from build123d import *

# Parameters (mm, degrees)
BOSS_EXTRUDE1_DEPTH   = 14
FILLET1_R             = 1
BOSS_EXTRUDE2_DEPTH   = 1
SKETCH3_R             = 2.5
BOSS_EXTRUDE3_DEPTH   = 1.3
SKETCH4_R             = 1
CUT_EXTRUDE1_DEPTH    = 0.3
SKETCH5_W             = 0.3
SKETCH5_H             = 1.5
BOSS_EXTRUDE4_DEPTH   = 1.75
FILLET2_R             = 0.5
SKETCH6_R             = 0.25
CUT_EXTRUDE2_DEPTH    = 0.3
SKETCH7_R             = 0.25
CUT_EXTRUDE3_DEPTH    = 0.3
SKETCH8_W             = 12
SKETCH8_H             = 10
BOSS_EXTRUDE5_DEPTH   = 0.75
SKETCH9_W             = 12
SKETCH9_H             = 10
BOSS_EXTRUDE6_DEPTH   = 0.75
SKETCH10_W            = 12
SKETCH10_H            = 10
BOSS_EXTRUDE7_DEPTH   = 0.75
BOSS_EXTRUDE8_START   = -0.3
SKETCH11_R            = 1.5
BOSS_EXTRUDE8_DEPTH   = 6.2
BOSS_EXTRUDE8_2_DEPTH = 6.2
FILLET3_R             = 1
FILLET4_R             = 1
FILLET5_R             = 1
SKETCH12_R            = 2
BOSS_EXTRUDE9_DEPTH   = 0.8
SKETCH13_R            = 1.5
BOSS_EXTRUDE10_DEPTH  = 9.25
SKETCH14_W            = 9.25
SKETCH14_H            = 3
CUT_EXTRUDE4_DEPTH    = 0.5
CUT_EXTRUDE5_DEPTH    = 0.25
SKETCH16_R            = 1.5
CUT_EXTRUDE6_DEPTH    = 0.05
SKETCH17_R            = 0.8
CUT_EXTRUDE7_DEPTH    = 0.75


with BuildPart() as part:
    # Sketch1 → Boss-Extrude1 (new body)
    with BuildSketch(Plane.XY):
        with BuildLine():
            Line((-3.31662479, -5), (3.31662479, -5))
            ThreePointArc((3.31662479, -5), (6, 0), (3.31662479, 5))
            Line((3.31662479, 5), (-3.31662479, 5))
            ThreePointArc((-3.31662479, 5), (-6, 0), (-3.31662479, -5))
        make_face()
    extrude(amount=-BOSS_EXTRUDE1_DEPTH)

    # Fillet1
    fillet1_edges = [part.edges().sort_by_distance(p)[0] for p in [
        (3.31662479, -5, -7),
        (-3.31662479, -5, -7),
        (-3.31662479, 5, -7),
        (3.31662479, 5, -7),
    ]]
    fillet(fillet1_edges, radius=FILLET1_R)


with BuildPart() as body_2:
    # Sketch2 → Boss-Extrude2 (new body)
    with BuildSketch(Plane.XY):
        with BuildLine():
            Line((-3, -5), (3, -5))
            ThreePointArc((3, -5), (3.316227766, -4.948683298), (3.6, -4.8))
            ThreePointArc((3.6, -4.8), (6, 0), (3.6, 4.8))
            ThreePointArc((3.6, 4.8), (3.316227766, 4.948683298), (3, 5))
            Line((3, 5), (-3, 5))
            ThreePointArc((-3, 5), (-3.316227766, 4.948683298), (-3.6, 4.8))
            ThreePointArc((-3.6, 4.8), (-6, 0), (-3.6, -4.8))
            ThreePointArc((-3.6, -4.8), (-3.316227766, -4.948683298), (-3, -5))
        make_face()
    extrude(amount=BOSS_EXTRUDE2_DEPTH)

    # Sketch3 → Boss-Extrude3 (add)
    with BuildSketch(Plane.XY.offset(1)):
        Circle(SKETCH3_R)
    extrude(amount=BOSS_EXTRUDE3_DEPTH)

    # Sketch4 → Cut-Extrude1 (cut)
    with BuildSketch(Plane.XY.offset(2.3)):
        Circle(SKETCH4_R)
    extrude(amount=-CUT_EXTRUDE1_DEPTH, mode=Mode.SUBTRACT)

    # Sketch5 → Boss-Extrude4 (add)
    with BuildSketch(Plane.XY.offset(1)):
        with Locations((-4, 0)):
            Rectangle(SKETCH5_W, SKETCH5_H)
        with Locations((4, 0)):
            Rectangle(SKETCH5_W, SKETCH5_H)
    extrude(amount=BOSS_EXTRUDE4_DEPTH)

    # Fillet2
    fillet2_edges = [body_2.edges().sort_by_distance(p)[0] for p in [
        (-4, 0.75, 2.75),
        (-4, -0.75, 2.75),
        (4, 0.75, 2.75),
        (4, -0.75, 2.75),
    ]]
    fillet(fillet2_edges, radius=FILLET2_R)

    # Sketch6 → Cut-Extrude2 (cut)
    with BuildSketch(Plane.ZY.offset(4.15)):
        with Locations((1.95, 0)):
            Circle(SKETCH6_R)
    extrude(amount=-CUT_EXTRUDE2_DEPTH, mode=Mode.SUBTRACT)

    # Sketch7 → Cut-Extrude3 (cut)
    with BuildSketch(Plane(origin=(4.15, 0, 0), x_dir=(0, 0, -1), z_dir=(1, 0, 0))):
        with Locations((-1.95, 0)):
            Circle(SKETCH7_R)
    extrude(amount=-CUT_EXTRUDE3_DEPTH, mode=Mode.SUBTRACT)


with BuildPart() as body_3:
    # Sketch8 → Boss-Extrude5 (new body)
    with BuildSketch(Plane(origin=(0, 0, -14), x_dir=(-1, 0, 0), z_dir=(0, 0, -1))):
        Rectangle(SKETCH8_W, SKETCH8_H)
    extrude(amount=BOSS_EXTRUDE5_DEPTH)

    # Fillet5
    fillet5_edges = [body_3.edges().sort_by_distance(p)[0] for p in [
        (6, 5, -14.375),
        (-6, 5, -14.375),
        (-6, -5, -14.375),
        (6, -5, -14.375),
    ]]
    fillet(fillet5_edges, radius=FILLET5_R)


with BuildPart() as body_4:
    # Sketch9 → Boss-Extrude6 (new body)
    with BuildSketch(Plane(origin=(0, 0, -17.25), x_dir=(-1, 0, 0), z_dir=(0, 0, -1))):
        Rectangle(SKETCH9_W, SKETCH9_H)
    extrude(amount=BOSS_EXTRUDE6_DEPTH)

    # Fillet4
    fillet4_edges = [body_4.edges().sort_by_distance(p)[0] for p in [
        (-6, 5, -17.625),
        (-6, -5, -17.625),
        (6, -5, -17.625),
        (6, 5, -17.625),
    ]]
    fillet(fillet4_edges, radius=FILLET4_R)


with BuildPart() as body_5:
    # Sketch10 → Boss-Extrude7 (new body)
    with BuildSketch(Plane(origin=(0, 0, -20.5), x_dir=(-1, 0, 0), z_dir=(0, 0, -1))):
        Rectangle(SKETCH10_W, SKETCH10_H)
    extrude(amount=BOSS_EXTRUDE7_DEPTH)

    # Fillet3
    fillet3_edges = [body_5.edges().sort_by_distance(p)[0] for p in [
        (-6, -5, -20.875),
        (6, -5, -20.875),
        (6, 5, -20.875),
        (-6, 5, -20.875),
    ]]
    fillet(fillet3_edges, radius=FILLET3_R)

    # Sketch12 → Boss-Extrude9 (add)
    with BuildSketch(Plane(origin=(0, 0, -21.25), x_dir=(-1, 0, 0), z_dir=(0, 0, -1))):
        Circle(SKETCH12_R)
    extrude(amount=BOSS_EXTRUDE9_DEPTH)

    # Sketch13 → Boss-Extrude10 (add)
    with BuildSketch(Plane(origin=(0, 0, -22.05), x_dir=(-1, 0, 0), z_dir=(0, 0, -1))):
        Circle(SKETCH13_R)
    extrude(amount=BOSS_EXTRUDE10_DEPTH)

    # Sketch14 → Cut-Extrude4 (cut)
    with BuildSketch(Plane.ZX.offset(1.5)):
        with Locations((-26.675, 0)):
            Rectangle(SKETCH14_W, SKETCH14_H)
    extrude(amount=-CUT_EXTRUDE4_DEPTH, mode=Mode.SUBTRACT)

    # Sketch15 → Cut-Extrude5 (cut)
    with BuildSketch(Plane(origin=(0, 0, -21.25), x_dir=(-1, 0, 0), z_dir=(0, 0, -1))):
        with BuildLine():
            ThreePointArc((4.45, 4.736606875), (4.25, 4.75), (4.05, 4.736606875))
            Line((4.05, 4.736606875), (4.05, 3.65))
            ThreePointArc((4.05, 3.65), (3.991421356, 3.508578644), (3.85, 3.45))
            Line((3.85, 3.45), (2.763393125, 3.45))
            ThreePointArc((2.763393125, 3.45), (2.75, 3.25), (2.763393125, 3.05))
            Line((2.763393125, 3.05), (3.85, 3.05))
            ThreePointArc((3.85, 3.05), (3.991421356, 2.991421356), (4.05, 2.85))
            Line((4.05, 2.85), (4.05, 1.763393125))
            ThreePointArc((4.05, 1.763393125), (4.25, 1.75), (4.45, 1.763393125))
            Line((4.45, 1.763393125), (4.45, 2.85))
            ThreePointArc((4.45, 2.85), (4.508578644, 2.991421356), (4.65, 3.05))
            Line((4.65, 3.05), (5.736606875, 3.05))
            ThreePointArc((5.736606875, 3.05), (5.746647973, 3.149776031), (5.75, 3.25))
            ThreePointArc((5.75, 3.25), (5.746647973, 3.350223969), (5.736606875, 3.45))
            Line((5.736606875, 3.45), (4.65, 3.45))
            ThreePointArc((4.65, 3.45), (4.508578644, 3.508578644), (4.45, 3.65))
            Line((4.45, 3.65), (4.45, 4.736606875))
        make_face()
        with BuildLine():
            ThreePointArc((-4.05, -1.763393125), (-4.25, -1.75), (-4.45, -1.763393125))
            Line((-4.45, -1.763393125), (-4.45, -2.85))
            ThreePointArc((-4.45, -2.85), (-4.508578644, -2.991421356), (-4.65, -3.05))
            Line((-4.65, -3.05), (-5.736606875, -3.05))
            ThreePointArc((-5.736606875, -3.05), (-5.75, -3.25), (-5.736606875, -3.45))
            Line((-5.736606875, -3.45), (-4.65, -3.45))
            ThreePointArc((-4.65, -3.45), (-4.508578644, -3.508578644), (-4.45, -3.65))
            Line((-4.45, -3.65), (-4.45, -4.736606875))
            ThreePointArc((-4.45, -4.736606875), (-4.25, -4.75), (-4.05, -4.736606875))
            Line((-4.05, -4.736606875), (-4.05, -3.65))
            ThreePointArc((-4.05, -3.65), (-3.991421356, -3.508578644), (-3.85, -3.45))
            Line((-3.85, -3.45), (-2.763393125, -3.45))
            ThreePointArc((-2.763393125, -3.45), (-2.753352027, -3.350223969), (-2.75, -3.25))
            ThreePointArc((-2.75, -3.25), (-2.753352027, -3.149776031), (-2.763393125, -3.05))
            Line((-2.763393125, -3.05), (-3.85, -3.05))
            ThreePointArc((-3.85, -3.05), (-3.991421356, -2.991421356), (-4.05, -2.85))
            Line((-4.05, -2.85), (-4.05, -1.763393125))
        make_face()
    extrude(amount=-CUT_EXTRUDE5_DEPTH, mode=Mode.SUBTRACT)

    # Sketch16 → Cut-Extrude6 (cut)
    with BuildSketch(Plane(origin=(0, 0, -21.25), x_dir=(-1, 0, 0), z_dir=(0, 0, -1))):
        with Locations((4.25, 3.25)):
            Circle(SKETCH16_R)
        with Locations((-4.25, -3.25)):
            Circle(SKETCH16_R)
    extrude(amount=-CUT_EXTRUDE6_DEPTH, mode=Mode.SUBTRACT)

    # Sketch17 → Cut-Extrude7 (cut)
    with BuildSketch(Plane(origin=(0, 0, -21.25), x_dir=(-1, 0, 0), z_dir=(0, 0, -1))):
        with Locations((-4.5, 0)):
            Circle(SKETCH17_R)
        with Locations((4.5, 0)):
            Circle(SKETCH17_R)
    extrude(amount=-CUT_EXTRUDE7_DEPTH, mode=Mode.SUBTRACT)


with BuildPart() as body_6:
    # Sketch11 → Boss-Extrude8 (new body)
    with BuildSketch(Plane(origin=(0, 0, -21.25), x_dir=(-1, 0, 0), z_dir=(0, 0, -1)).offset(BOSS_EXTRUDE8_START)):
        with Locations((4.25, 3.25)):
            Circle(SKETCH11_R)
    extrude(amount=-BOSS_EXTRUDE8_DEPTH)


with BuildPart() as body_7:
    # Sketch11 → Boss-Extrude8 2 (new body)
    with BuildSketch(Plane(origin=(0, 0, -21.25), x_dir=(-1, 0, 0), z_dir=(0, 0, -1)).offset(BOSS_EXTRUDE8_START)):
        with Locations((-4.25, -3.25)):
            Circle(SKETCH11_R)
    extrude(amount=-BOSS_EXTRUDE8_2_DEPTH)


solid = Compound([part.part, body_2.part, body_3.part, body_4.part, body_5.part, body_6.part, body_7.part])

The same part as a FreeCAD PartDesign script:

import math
import FreeCAD as App
import Part
import Sketcher
Q = App.Units.Quantity


def edges_at(feature, points):
    """Names of the edges that pass closest to the given points."""
    edges = feature.Shape.Edges
    near = lambda p: min(range(len(edges)), key=lambda i: edges[i].distToShape(Part.Vertex(*p))[0])
    return sorted({f"Edge{near(p) + 1}" for p in points})

doc = App.newDocument("Part")
params = doc.addObject("Spreadsheet::Sheet", "Params")
for row, (alias, value) in enumerate([
    ("sketch1_radius", "6 mm"),
    ("pad1_length", "14 mm"),
    ("fillet_radius", "1 mm"),
    ("sketch2_radius", "1 mm"),
    ("sketch2_radius2", "6 mm"),
    ("sketch2_width", "6 mm"),
    ("pad2_length", "1 mm"),
    ("sketch3_diameter", "5 mm"),
    ("pad3_length", "1.3 mm"),
    ("sketch4_diameter", "2 mm"),
    ("pocket1_length", "0.3 mm"),
    ("sketch5_width", "0.3 mm"),
    ("sketch5_height", "1.5 mm"),
    ("pad4_length", "1.75 mm"),
    ("fillet2_radius", "0.5 mm"),
    ("sketch6_diameter", "0.5 mm"),
    ("pocket2_length", "0.3 mm"),
    ("sketch7_diameter", "0.5 mm"),
    ("pocket3_length", "0.3 mm"),
    ("sketch8_width", "12 mm"),
    ("sketch8_height", "10 mm"),
    ("pad5_length", "0.75 mm"),
    ("fillet3_radius", "1 mm"),
    ("sketch9_width", "12 mm"),
    ("sketch9_height", "10 mm"),
    ("pad6_length", "0.75 mm"),
    ("fillet4_radius", "1 mm"),
    ("sketch10_width", "12 mm"),
    ("sketch10_height", "10 mm"),
    ("pad7_length", "0.75 mm"),
    ("fillet5_radius", "1 mm"),
    ("sketch11_diameter", "4 mm"),
    ("pad8_length", "0.8 mm"),
    ("sketch12_diameter", "3 mm"),
    ("pad9_length", "9.25 mm"),
    ("sketch13_width", "3 mm"),
    ("sketch13_height", "9.25 mm"),
    ("pocket4_length", "0.5 mm"),
    ("sketch14_radius", "1.5 mm"),
    ("sketch14_radius2", "0.2 mm"),
    ("pocket5_length", "0.25 mm"),
    ("sketch15_diameter", "3 mm"),
    ("pocket6_length", "0.05 mm"),
    ("sketch16_diameter", "1.6 mm"),
    ("pocket7_length", "0.75 mm"),
    ("sketch17_diameter", "3 mm"),
    ("pad10_length", "6.2 mm"),
    ("sketch18_diameter", "3 mm"),
    ("pad11_length", "6.2 mm"),
], start=1):
    params.set(f"A{row}", alias)
    params.set(f"B{row}", "=" + value)
    params.setAlias(f"B{row}", alias)

body = doc.addObject("PartDesign::Body", "Body")

# Sketch on XY plane
sketch1 = doc.addObject("Sketcher::SketchObject", "Sketch")
body.addObject(sketch1)
sketch1.AttachmentSupport = (doc.XY_Plane, [""])
sketch1.MapMode = "FlatFace"
sketch1.addGeometry([
    Part.LineSegment(App.Vector(-3, -5, 0), App.Vector(3, -5, 0)),
    Part.ArcOfCircle(Part.Circle(App.Vector(0, 0, 0), App.Vector(0, 0, 1), 6), math.radians(-56), math.radians(56)),
    Part.LineSegment(App.Vector(3, 5, 0), App.Vector(-3, 5, 0)),
    Part.ArcOfCircle(Part.Circle(App.Vector(0, 0, 0), App.Vector(0, 0, 1), 6), math.radians(124), math.radians(236)),
], False)
sketch1.addConstraint([
    Sketcher.Constraint("Coincident", 0, 2, 1, 1),
    Sketcher.Constraint("Coincident", 1, 2, 2, 1),
    Sketcher.Constraint("Coincident", 2, 2, 3, 1),
    Sketcher.Constraint("Coincident", 3, 2, 0, 1),
    Sketcher.Constraint("Horizontal", 0),
    Sketcher.Constraint("Horizontal", 2),
    Sketcher.Constraint("Coincident", 1, 3, -1, 1),
    Sketcher.Constraint("Coincident", 3, 3, -1, 1),
    Sketcher.Constraint("Equal", 1, 3),
    Sketcher.Constraint("Vertical", 0, 2, 1, 2),
    Sketcher.Constraint("Radius", 1, Q("6 mm")),
    Sketcher.Constraint("DistanceY", 0, 2, -1, 1, Q("5 mm")),
])
sketch1.setExpression("Constraints[10]", "Params.sketch1_radius")
pad1 = doc.addObject("PartDesign::Pad", "Pad")
body.addObject(pad1)
pad1.Profile = sketch1
pad1.setExpression("Length", "Params.pad1_length")
pad1.Reversed = True
doc.recompute()

fillet = doc.addObject("PartDesign::Fillet", "Fillet")
body.addObject(fillet)
fillet.Base = (pad1, edges_at(pad1, [
    (3.317, -5, -7),
    (-3.317, -5, -7),
    (-3.317, 5, -7),
    (3.317, 5, -7),
]))
fillet.setExpression("Radius", "Params.fillet_radius")
body2 = doc.addObject("PartDesign::Body", "Body001")

# Sketch on XY plane
sketch2 = doc.addObject("Sketcher::SketchObject", "Sketch001")
body2.addObject(sketch2)
sketch2.AttachmentSupport = (doc.getObject("XY_Plane001"), [""])
sketch2.MapMode = "FlatFace"
sketch2.addGeometry([
    Part.LineSegment(App.Vector(-3, -5, 0), App.Vector(3, -5, 0)),  # 0
    Part.ArcOfCircle(Part.Circle(App.Vector(3, -4, 0), App.Vector(0, 0, 1), 1), math.radians(-90), math.radians(-53)),  # 1
    Part.ArcOfCircle(Part.Circle(App.Vector(0, 0, 0), App.Vector(0, 0, 1), 6), math.radians(-53), math.radians(53)),  # 2
    Part.ArcOfCircle(Part.Circle(App.Vector(3, 4, 0), App.Vector(0, 0, 1), 1), math.radians(53), math.radians(90)),  # 3
    Part.LineSegment(App.Vector(3, 5, 0), App.Vector(-3, 5, 0)),  # 4
    Part.ArcOfCircle(Part.Circle(App.Vector(-3, 4, 0), App.Vector(0, 0, 1), 1), math.radians(90), math.radians(127)),  # 5
    Part.ArcOfCircle(Part.Circle(App.Vector(0, 0, 0), App.Vector(0, 0, 1), 6), math.radians(127), math.radians(233)),  # 6
    Part.ArcOfCircle(Part.Circle(App.Vector(-3, -4, 0), App.Vector(0, 0, 1), 1), math.radians(-127), math.radians(-90)),  # 7
], False)
sketch2.addConstraint([
    Sketcher.Constraint("Tangent", 0, 2, 1, 1),
    Sketcher.Constraint("Tangent", 1, 2, 2, 1),
    Sketcher.Constraint("Tangent", 2, 2, 3, 1),
    Sketcher.Constraint("Tangent", 3, 2, 4, 1),
    Sketcher.Constraint("Tangent", 4, 2, 5, 1),
    Sketcher.Constraint("Tangent", 5, 2, 6, 1),
    Sketcher.Constraint("Tangent", 6, 2, 7, 1),
    Sketcher.Constraint("Tangent", 7, 2, 0, 1),
    Sketcher.Constraint("Horizontal", 0),
    Sketcher.Constraint("Horizontal", 4),
    Sketcher.Constraint("Coincident", 2, 3, -1, 1),
    Sketcher.Constraint("Coincident", 6, 3, -1, 1),
    Sketcher.Constraint("Equal", 1, 3),
    Sketcher.Constraint("Equal", 3, 5),
    Sketcher.Constraint("Equal", 2, 6),
    Sketcher.Constraint("Equal", 5, 7),
    Sketcher.Constraint("Vertical", 1, 3, 3, 3),
    Sketcher.Constraint("Radius", 1, Q("1 mm")),
    Sketcher.Constraint("Radius", 2, Q("6 mm")),
    Sketcher.Constraint("DistanceX", 0, 1, 0, 2, Q("6 mm")),
])
sketch2.setExpression("Constraints[17]", "Params.sketch2_radius")
sketch2.setExpression("Constraints[18]", "Params.sketch2_radius2")
sketch2.setExpression("Constraints[19]", "Params.sketch2_width")
pad2 = doc.addObject("PartDesign::Pad", "Pad001")
body2.addObject(pad2)
pad2.Profile = sketch2
pad2.setExpression("Length", "Params.pad2_length")

# Sketch on XY plane
sketch3 = doc.addObject("Sketcher::SketchObject", "Sketch002")
body2.addObject(sketch3)
sketch3.AttachmentSupport = (doc.getObject("XY_Plane001"), [""])
sketch3.MapMode = "FlatFace"
sketch3.AttachmentOffset = App.Placement(App.Vector(0, 0, 1), App.Rotation())
sketch3.addGeometry(Part.Circle(App.Vector(0, 0, 0), App.Vector(0, 0, 1), 2.5), False)
sketch3.addConstraint([
    Sketcher.Constraint("Coincident", 0, 3, -1, 1),
    Sketcher.Constraint("Diameter", 0, Q("5 mm")),
])
sketch3.setExpression("Constraints[1]", "Params.sketch3_diameter")
pad3 = doc.addObject("PartDesign::Pad", "Pad002")
body2.addObject(pad3)
pad3.Profile = sketch3
pad3.setExpression("Length", "Params.pad3_length")

# Sketch on XY plane
sketch4 = doc.addObject("Sketcher::SketchObject", "Sketch003")
body2.addObject(sketch4)
sketch4.AttachmentSupport = (doc.getObject("XY_Plane001"), [""])
sketch4.MapMode = "FlatFace"
sketch4.AttachmentOffset = App.Placement(App.Vector(0, 0, 2.3), App.Rotation())
sketch4.addGeometry(Part.Circle(App.Vector(0, 0, 0), App.Vector(0, 0, 1), 1), False)
sketch4.addConstraint([
    Sketcher.Constraint("Coincident", 0, 3, -1, 1),
    Sketcher.Constraint("Diameter", 0, Q("2 mm")),
])
sketch4.setExpression("Constraints[1]", "Params.sketch4_diameter")
pocket1 = doc.addObject("PartDesign::Pocket", "Pocket")
body2.addObject(pocket1)
pocket1.Profile = sketch4
pocket1.setExpression("Length", "Params.pocket1_length")

# Sketch on XY plane
sketch5 = doc.addObject("Sketcher::SketchObject", "Sketch004")
body2.addObject(sketch5)
sketch5.AttachmentSupport = (doc.getObject("XY_Plane001"), [""])
sketch5.MapMode = "FlatFace"
sketch5.AttachmentOffset = App.Placement(App.Vector(0, 0, 1), App.Rotation())
sketch5.addGeometry([
    Part.LineSegment(App.Vector(-4.15, 0.75, 0), App.Vector(-4.15, -0.75, 0)),  # 0
    Part.LineSegment(App.Vector(-4.15, -0.75, 0), App.Vector(-3.85, -0.75, 0)),  # 1
    Part.LineSegment(App.Vector(-3.85, -0.75, 0), App.Vector(-3.85, 0.75, 0)),  # 2
    Part.LineSegment(App.Vector(-3.85, 0.75, 0), App.Vector(-4.15, 0.75, 0)),  # 3
    Part.LineSegment(App.Vector(3.85, 0.75, 0), App.Vector(3.85, -0.75, 0)),  # 4
    Part.LineSegment(App.Vector(3.85, -0.75, 0), App.Vector(4.15, -0.75, 0)),  # 5
    Part.LineSegment(App.Vector(4.15, -0.75, 0), App.Vector(4.15, 0.75, 0)),  # 6
    Part.LineSegment(App.Vector(4.15, 0.75, 0), App.Vector(3.85, 0.75, 0)),  # 7
], False)
sketch5.addConstraint([
    Sketcher.Constraint("Coincident", 0, 2, 1, 1),
    Sketcher.Constraint("Coincident", 1, 2, 2, 1),
    Sketcher.Constraint("Coincident", 2, 2, 3, 1),
    Sketcher.Constraint("Coincident", 3, 2, 0, 1),
    Sketcher.Constraint("Coincident", 4, 2, 5, 1),
    Sketcher.Constraint("Coincident", 5, 2, 6, 1),
    Sketcher.Constraint("Coincident", 6, 2, 7, 1),
    Sketcher.Constraint("Coincident", 7, 2, 4, 1),
    Sketcher.Constraint("Vertical", 0),
    Sketcher.Constraint("Horizontal", 1),
    Sketcher.Constraint("Vertical", 2),
    Sketcher.Constraint("Horizontal", 3),
    Sketcher.Constraint("Vertical", 4),
    Sketcher.Constraint("Horizontal", 5),
    Sketcher.Constraint("Vertical", 6),
    Sketcher.Constraint("Horizontal", 7),
    Sketcher.Constraint("Symmetric", 2, 2, 4, 2, -1, 1),
    Sketcher.Constraint("Symmetric", 0, 2, 6, 2, -1, 1),
    Sketcher.Constraint("Horizontal", 1, 2, 4, 2),
    Sketcher.Constraint("DistanceX", 1, 1, 1, 2, Q("0.3 mm")),
    Sketcher.Constraint("DistanceY", 0, 2, 0, 1, Q("1.5 mm")),
    Sketcher.Constraint("DistanceX", 0, 2, 4, 2, Q("8 mm")),
])
sketch5.setExpression("Constraints[19]", "Params.sketch5_width")
sketch5.setExpression("Constraints[20]", "Params.sketch5_height")
pad4 = doc.addObject("PartDesign::Pad", "Pad003")
body2.addObject(pad4)
pad4.Profile = sketch5
pad4.setExpression("Length", "Params.pad4_length")
doc.recompute()

fillet2 = doc.addObject("PartDesign::Fillet", "Fillet001")
body2.addObject(fillet2)
fillet2.Base = (pad4, edges_at(pad4, [
    (-4, 0.75, 2.75),
    (-4, -0.75, 2.75),
    (4, 0.75, 2.75),
    (4, -0.75, 2.75),
]))
fillet2.setExpression("Radius", "Params.fillet2_radius")

# Sketch on YZ plane
sketch6 = doc.addObject("Sketcher::SketchObject", "Sketch005")
body2.addObject(sketch6)
sketch6.AttachmentSupport = (doc.getObject("YZ_Plane001"), [""])
sketch6.MapMode = "FlatFace"
sketch6.AttachmentOffset = App.Placement(App.Vector(0, 0, -4.15), App.Rotation())
sketch6.addGeometry(Part.Circle(App.Vector(0, 1.95, 0), App.Vector(0, 0, 1), 0.25), False)
sketch6.addConstraint([
    Sketcher.Constraint("PointOnObject", 0, 3, -2),
    Sketcher.Constraint("Diameter", 0, Q("0.5 mm")),
    Sketcher.Constraint("DistanceY", -1, 1, 0, 3, Q("1.95 mm")),
])
sketch6.setExpression("Constraints[1]", "Params.sketch6_diameter")
pocket2 = doc.addObject("PartDesign::Pocket", "Pocket001")
body2.addObject(pocket2)
pocket2.Profile = sketch6
pocket2.setExpression("Length", "Params.pocket2_length")
pocket2.Reversed = True

# Sketch on YZ plane
sketch7 = doc.addObject("Sketcher::SketchObject", "Sketch006")
body2.addObject(sketch7)
sketch7.AttachmentSupport = (doc.getObject("YZ_Plane001"), [""])
sketch7.MapMode = "FlatFace"
sketch7.AttachmentOffset = App.Placement(App.Vector(0, 0, 4.15), App.Rotation())
sketch7.addGeometry(Part.Circle(App.Vector(0, 1.95, 0), App.Vector(0, 0, 1), 0.25), False)
sketch7.addConstraint([
    Sketcher.Constraint("PointOnObject", 0, 3, -2),
    Sketcher.Constraint("Diameter", 0, Q("0.5 mm")),
    Sketcher.Constraint("DistanceY", -1, 1, 0, 3, Q("1.95 mm")),
])
sketch7.setExpression("Constraints[1]", "Params.sketch7_diameter")
pocket3 = doc.addObject("PartDesign::Pocket", "Pocket002")
body2.addObject(pocket3)
pocket3.Profile = sketch7
pocket3.setExpression("Length", "Params.pocket3_length")
body3 = doc.addObject("PartDesign::Body", "Body002")

# Sketch on XY plane
sketch8 = doc.addObject("Sketcher::SketchObject", "Sketch007")
body3.addObject(sketch8)
sketch8.AttachmentSupport = (doc.getObject("XY_Plane002"), [""])
sketch8.MapMode = "FlatFace"
sketch8.AttachmentOffset = App.Placement(App.Vector(0, 0, -14), App.Rotation())
sketch8.addGeometry([
    Part.LineSegment(App.Vector(6, 5, 0), App.Vector(6, -5, 0)),
    Part.LineSegment(App.Vector(6, -5, 0), App.Vector(-6, -5, 0)),
    Part.LineSegment(App.Vector(-6, -5, 0), App.Vector(-6, 5, 0)),
    Part.LineSegment(App.Vector(-6, 5, 0), App.Vector(6, 5, 0)),
], False)
sketch8.addConstraint([
    Sketcher.Constraint("Coincident", 0, 2, 1, 1),
    Sketcher.Constraint("Coincident", 1, 2, 2, 1),
    Sketcher.Constraint("Coincident", 2, 2, 3, 1),
    Sketcher.Constraint("Coincident", 3, 2, 0, 1),
    Sketcher.Constraint("Vertical", 0),
    Sketcher.Constraint("Horizontal", 1),
    Sketcher.Constraint("Vertical", 2),
    Sketcher.Constraint("Horizontal", 3),
    Sketcher.Constraint("Symmetric", 0, 2, 2, 2, -1, 1),
    Sketcher.Constraint("DistanceX", 1, 2, 1, 1, Q("12 mm")),
    Sketcher.Constraint("DistanceY", 0, 2, 0, 1, Q("10 mm")),
])
sketch8.setExpression("Constraints[9]", "Params.sketch8_width")
sketch8.setExpression("Constraints[10]", "Params.sketch8_height")
pad5 = doc.addObject("PartDesign::Pad", "Pad004")
body3.addObject(pad5)
pad5.Profile = sketch8
pad5.setExpression("Length", "Params.pad5_length")
pad5.Reversed = True
doc.recompute()

fillet3 = doc.addObject("PartDesign::Fillet", "Fillet002")
body3.addObject(fillet3)
fillet3.Base = (pad5, edges_at(pad5, [
    (6, 5, -14.375),
    (-6, 5, -14.375),
    (-6, -5, -14.375),
    (6, -5, -14.375),
]))
fillet3.setExpression("Radius", "Params.fillet3_radius")
body4 = doc.addObject("PartDesign::Body", "Body003")

# Sketch on XY plane
sketch9 = doc.addObject("Sketcher::SketchObject", "Sketch008")
body4.addObject(sketch9)
sketch9.AttachmentSupport = (doc.getObject("XY_Plane003"), [""])
sketch9.MapMode = "FlatFace"
sketch9.AttachmentOffset = App.Placement(App.Vector(0, 0, -17.25), App.Rotation())
sketch9.addGeometry([
    Part.LineSegment(App.Vector(6, 5, 0), App.Vector(6, -5, 0)),
    Part.LineSegment(App.Vector(6, -5, 0), App.Vector(-6, -5, 0)),
    Part.LineSegment(App.Vector(-6, -5, 0), App.Vector(-6, 5, 0)),
    Part.LineSegment(App.Vector(-6, 5, 0), App.Vector(6, 5, 0)),
], False)
sketch9.addConstraint([
    Sketcher.Constraint("Coincident", 0, 2, 1, 1),
    Sketcher.Constraint("Coincident", 1, 2, 2, 1),
    Sketcher.Constraint("Coincident", 2, 2, 3, 1),
    Sketcher.Constraint("Coincident", 3, 2, 0, 1),
    Sketcher.Constraint("Vertical", 0),
    Sketcher.Constraint("Horizontal", 1),
    Sketcher.Constraint("Vertical", 2),
    Sketcher.Constraint("Horizontal", 3),
    Sketcher.Constraint("Symmetric", 0, 2, 2, 2, -1, 1),
    Sketcher.Constraint("DistanceX", 1, 2, 1, 1, Q("12 mm")),
    Sketcher.Constraint("DistanceY", 0, 2, 0, 1, Q("10 mm")),
])
sketch9.setExpression("Constraints[9]", "Params.sketch9_width")
sketch9.setExpression("Constraints[10]", "Params.sketch9_height")
pad6 = doc.addObject("PartDesign::Pad", "Pad005")
body4.addObject(pad6)
pad6.Profile = sketch9
pad6.setExpression("Length", "Params.pad6_length")
pad6.Reversed = True
doc.recompute()

fillet4 = doc.addObject("PartDesign::Fillet", "Fillet003")
body4.addObject(fillet4)
fillet4.Base = (pad6, edges_at(pad6, [
    (-6, 5, -17.625),
    (-6, -5, -17.625),
    (6, -5, -17.625),
    (6, 5, -17.625),
]))
fillet4.setExpression("Radius", "Params.fillet4_radius")
body5 = doc.addObject("PartDesign::Body", "Body004")

# Sketch on XY plane
sketch10 = doc.addObject("Sketcher::SketchObject", "Sketch009")
body5.addObject(sketch10)
sketch10.AttachmentSupport = (doc.getObject("XY_Plane004"), [""])
sketch10.MapMode = "FlatFace"
sketch10.AttachmentOffset = App.Placement(App.Vector(0, 0, -20.5), App.Rotation())
sketch10.addGeometry([
    Part.LineSegment(App.Vector(6, 5, 0), App.Vector(6, -5, 0)),
    Part.LineSegment(App.Vector(6, -5, 0), App.Vector(-6, -5, 0)),
    Part.LineSegment(App.Vector(-6, -5, 0), App.Vector(-6, 5, 0)),
    Part.LineSegment(App.Vector(-6, 5, 0), App.Vector(6, 5, 0)),
], False)
sketch10.addConstraint([
    Sketcher.Constraint("Coincident", 0, 2, 1, 1),
    Sketcher.Constraint("Coincident", 1, 2, 2, 1),
    Sketcher.Constraint("Coincident", 2, 2, 3, 1),
    Sketcher.Constraint("Coincident", 3, 2, 0, 1),
    Sketcher.Constraint("Vertical", 0),
    Sketcher.Constraint("Horizontal", 1),
    Sketcher.Constraint("Vertical", 2),
    Sketcher.Constraint("Horizontal", 3),
    Sketcher.Constraint("Symmetric", 0, 2, 2, 2, -1, 1),
    Sketcher.Constraint("DistanceX", 1, 2, 1, 1, Q("12 mm")),
    Sketcher.Constraint("DistanceY", 0, 2, 0, 1, Q("10 mm")),
])
sketch10.setExpression("Constraints[9]", "Params.sketch10_width")
sketch10.setExpression("Constraints[10]", "Params.sketch10_height")
pad7 = doc.addObject("PartDesign::Pad", "Pad006")
body5.addObject(pad7)
pad7.Profile = sketch10
pad7.setExpression("Length", "Params.pad7_length")
pad7.Reversed = True
doc.recompute()

fillet5 = doc.addObject("PartDesign::Fillet", "Fillet004")
body5.addObject(fillet5)
fillet5.Base = (pad7, edges_at(pad7, [
    (-6, -5, -20.875),
    (6, -5, -20.875),
    (6, 5, -20.875),
    (-6, 5, -20.875),
]))
fillet5.setExpression("Radius", "Params.fillet5_radius")

# Sketch on XY plane
sketch11 = doc.addObject("Sketcher::SketchObject", "Sketch010")
body5.addObject(sketch11)
sketch11.AttachmentSupport = (doc.getObject("XY_Plane004"), [""])
sketch11.MapMode = "FlatFace"
sketch11.AttachmentOffset = App.Placement(App.Vector(0, 0, -21.25), App.Rotation())
sketch11.addGeometry(Part.Circle(App.Vector(0, 0, 0), App.Vector(0, 0, 1), 2), False)
sketch11.addConstraint([
    Sketcher.Constraint("Coincident", 0, 3, -1, 1),
    Sketcher.Constraint("Diameter", 0, Q("4 mm")),
])
sketch11.setExpression("Constraints[1]", "Params.sketch11_diameter")
pad8 = doc.addObject("PartDesign::Pad", "Pad007")
body5.addObject(pad8)
pad8.Profile = sketch11
pad8.setExpression("Length", "Params.pad8_length")
pad8.Reversed = True

# Sketch on XY plane
sketch12 = doc.addObject("Sketcher::SketchObject", "Sketch011")
body5.addObject(sketch12)
sketch12.AttachmentSupport = (doc.getObject("XY_Plane004"), [""])
sketch12.MapMode = "FlatFace"
sketch12.AttachmentOffset = App.Placement(App.Vector(0, 0, -22.05), App.Rotation())
sketch12.addGeometry(Part.Circle(App.Vector(0, 0, 0), App.Vector(0, 0, 1), 1.5), False)
sketch12.addConstraint([
    Sketcher.Constraint("Coincident", 0, 3, -1, 1),
    Sketcher.Constraint("Diameter", 0, Q("3 mm")),
])
sketch12.setExpression("Constraints[1]", "Params.sketch12_diameter")
pad9 = doc.addObject("PartDesign::Pad", "Pad008")
body5.addObject(pad9)
pad9.Profile = sketch12
pad9.setExpression("Length", "Params.pad9_length")
pad9.Reversed = True

# Sketch on XZ plane
sketch13 = doc.addObject("Sketcher::SketchObject", "Sketch012")
body5.addObject(sketch13)
sketch13.AttachmentSupport = (doc.getObject("XZ_Plane004"), [""])
sketch13.MapMode = "FlatFace"
sketch13.AttachmentOffset = App.Placement(App.Vector(0, 0, -1.5), App.Rotation())
sketch13.addGeometry([
    Part.LineSegment(App.Vector(1.5, -31.3, 0), App.Vector(-1.5, -31.3, 0)),
    Part.LineSegment(App.Vector(-1.5, -31.3, 0), App.Vector(-1.5, -22.1, 0)),
    Part.LineSegment(App.Vector(-1.5, -22.1, 0), App.Vector(1.5, -22.1, 0)),
    Part.LineSegment(App.Vector(1.5, -22.1, 0), App.Vector(1.5, -31.3, 0)),
], False)
sketch13.addConstraint([
    Sketcher.Constraint("Coincident", 0, 2, 1, 1),
    Sketcher.Constraint("Coincident", 1, 2, 2, 1),
    Sketcher.Constraint("Coincident", 2, 2, 3, 1),
    Sketcher.Constraint("Coincident", 3, 2, 0, 1),
    Sketcher.Constraint("Horizontal", 0),
    Sketcher.Constraint("Vertical", 1),
    Sketcher.Constraint("Horizontal", 2),
    Sketcher.Constraint("Vertical", 3),
    Sketcher.Constraint("DistanceX", 0, 2, 0, 1, Q("3 mm")),
    Sketcher.Constraint("DistanceY", 1, 1, 1, 2, Q("9.25 mm")),
    Sketcher.Constraint("DistanceX", 0, 2, -1, 1, Q("1.5 mm")),
    Sketcher.Constraint("DistanceY", 0, 2, -1, 1, Q("31.3 mm")),
])
sketch13.setExpression("Constraints[8]", "Params.sketch13_width")
sketch13.setExpression("Constraints[9]", "Params.sketch13_height")
pocket4 = doc.addObject("PartDesign::Pocket", "Pocket003")
body5.addObject(pocket4)
pocket4.Profile = sketch13
pocket4.setExpression("Length", "Params.pocket4_length")
pocket4.Reversed = True

# Sketch on XY plane
sketch14 = doc.addObject("Sketcher::SketchObject", "Sketch013")
body5.addObject(sketch14)
sketch14.AttachmentSupport = (doc.getObject("XY_Plane004"), [""])
sketch14.MapMode = "FlatFace"
sketch14.AttachmentOffset = App.Placement(App.Vector(0, 0, -21.25), App.Rotation())
sketch14.addGeometry([
    Part.ArcOfCircle(Part.Circle(App.Vector(-4.25, 3.25, 0), App.Vector(0, 0, 1), 1.5), math.radians(82.34), math.radians(97.66)),  # 0
    Part.LineSegment(App.Vector(-4.05, 4.74, 0), App.Vector(-4.05, 3.65, 0)),  # 1
    Part.ArcOfCircle(Part.Circle(App.Vector(-3.85, 3.65, 0), App.Vector(0, 0, 1), 0.2), math.radians(-180), math.radians(-90)),  # 2
    Part.LineSegment(App.Vector(-3.85, 3.45, 0), App.Vector(-2.76, 3.45, 0)),  # 3
    Part.ArcOfCircle(Part.Circle(App.Vector(-4.25, 3.25, 0), App.Vector(0, 0, 1), 1.5), math.radians(-7.66), math.radians(7.66)),  # 4
    Part.LineSegment(App.Vector(-2.76, 3.05, 0), App.Vector(-3.85, 3.05, 0)),  # 5
    Part.ArcOfCircle(Part.Circle(App.Vector(-3.85, 2.85, 0), App.Vector(0, 0, 1), 0.2), math.radians(90), math.radians(180)),  # 6
    Part.LineSegment(App.Vector(-4.05, 2.85, 0), App.Vector(-4.05, 1.76, 0)),  # 7
    Part.ArcOfCircle(Part.Circle(App.Vector(-4.25, 3.25, 0), App.Vector(0, 0, 1), 1.5), math.radians(-97.66), math.radians(-82.34)),  # 8
    Part.LineSegment(App.Vector(-4.45, 1.76, 0), App.Vector(-4.45, 2.85, 0)),  # 9
    Part.ArcOfCircle(Part.Circle(App.Vector(-4.65, 2.85, 0), App.Vector(0, 0, 1), 0.2), math.radians(0), math.radians(90)),  # 10
    Part.LineSegment(App.Vector(-4.65, 3.05, 0), App.Vector(-5.74, 3.05, 0)),  # 11
    Part.ArcOfCircle(Part.Circle(App.Vector(-4.25, 3.25, 0), App.Vector(0, 0, 1), 1.5), math.radians(-180), math.radians(-172.34)),  # 12
    Part.ArcOfCircle(Part.Circle(App.Vector(-4.25, 3.25, 0), App.Vector(0, 0, 1), 1.5), math.radians(172.34), math.radians(180)),  # 13
    Part.LineSegment(App.Vector(-5.74, 3.45, 0), App.Vector(-4.65, 3.45, 0)),  # 14
    Part.ArcOfCircle(Part.Circle(App.Vector(-4.65, 3.65, 0), App.Vector(0, 0, 1), 0.2), math.radians(-90), math.radians(0)),  # 15
    Part.LineSegment(App.Vector(-4.45, 3.65, 0), App.Vector(-4.45, 4.74, 0)),  # 16
    Part.ArcOfCircle(Part.Circle(App.Vector(4.25, -3.25, 0), App.Vector(0, 0, 1), 1.5), math.radians(82.34), math.radians(97.66)),  # 17
    Part.LineSegment(App.Vector(4.45, -1.76, 0), App.Vector(4.45, -2.85, 0)),  # 18
    Part.ArcOfCircle(Part.Circle(App.Vector(4.65, -2.85, 0), App.Vector(0, 0, 1), 0.2), math.radians(-180), math.radians(-90)),  # 19
    Part.LineSegment(App.Vector(4.65, -3.05, 0), App.Vector(5.74, -3.05, 0)),  # 20
    Part.ArcOfCircle(Part.Circle(App.Vector(4.25, -3.25, 0), App.Vector(0, 0, 1), 1.5), math.radians(-7.66), math.radians(7.66)),  # 21
    Part.LineSegment(App.Vector(5.74, -3.45, 0), App.Vector(4.65, -3.45, 0)),  # 22
    Part.ArcOfCircle(Part.Circle(App.Vector(4.65, -3.65, 0), App.Vector(0, 0, 1), 0.2), math.radians(90), math.radians(180)),  # 23
    Part.LineSegment(App.Vector(4.45, -3.65, 0), App.Vector(4.45, -4.74, 0)),  # 24
    Part.ArcOfCircle(Part.Circle(App.Vector(4.25, -3.25, 0), App.Vector(0, 0, 1), 1.5), math.radians(-97.66), math.radians(-82.34)),  # 25
    Part.LineSegment(App.Vector(4.05, -4.74, 0), App.Vector(4.05, -3.65, 0)),  # 26
    Part.ArcOfCircle(Part.Circle(App.Vector(3.85, -3.65, 0), App.Vector(0, 0, 1), 0.2), math.radians(0), math.radians(90)),  # 27
    Part.LineSegment(App.Vector(3.85, -3.45, 0), App.Vector(2.76, -3.45, 0)),  # 28
    Part.ArcOfCircle(Part.Circle(App.Vector(4.25, -3.25, 0), App.Vector(0, 0, 1), 1.5), math.radians(-180), math.radians(-172.34)),  # 29
    Part.ArcOfCircle(Part.Circle(App.Vector(4.25, -3.25, 0), App.Vector(0, 0, 1), 1.5), math.radians(172.34), math.radians(180)),  # 30
    Part.LineSegment(App.Vector(2.76, -3.05, 0), App.Vector(3.85, -3.05, 0)),  # 31
    Part.ArcOfCircle(Part.Circle(App.Vector(3.85, -2.85, 0), App.Vector(0, 0, 1), 0.2), math.radians(-90), math.radians(0)),  # 32
    Part.LineSegment(App.Vector(4.05, -2.85, 0), App.Vector(4.05, -1.76, 0)),  # 33
], False)
sketch14.addConstraint([
    Sketcher.Constraint("Coincident", 0, 1, 1, 1),
    Sketcher.Constraint("Tangent", 1, 2, 2, 1),
    Sketcher.Constraint("Tangent", 2, 2, 3, 1),
    Sketcher.Constraint("Coincident", 3, 2, 4, 2),
    Sketcher.Constraint("Coincident", 4, 1, 5, 1),
    Sketcher.Constraint("Tangent", 5, 2, 6, 1),
    Sketcher.Constraint("Tangent", 6, 2, 7, 1),
    Sketcher.Constraint("Coincident", 7, 2, 8, 2),
    Sketcher.Constraint("Coincident", 8, 1, 9, 1),
    Sketcher.Constraint("Tangent", 9, 2, 10, 1),
    Sketcher.Constraint("Tangent", 10, 2, 11, 1),
    Sketcher.Constraint("Coincident", 11, 2, 12, 2),
    Sketcher.Constraint("Tangent", 12, 1, 13, 2),
    Sketcher.Constraint("Coincident", 13, 1, 14, 1),
    Sketcher.Constraint("Tangent", 14, 2, 15, 1),
    Sketcher.Constraint("Tangent", 15, 2, 16, 1),
    Sketcher.Constraint("Coincident", 16, 2, 0, 2),
    Sketcher.Constraint("Coincident", 17, 1, 18, 1),
    Sketcher.Constraint("Tangent", 18, 2, 19, 1),
    Sketcher.Constraint("Tangent", 19, 2, 20, 1),
    Sketcher.Constraint("Coincident", 20, 2, 21, 2),
    Sketcher.Constraint("Coincident", 21, 1, 22, 1),
    Sketcher.Constraint("Tangent", 22, 2, 23, 1),
    Sketcher.Constraint("Tangent", 23, 2, 24, 1),
    Sketcher.Constraint("Coincident", 24, 2, 25, 2),
    Sketcher.Constraint("Coincident", 25, 1, 26, 1),
    Sketcher.Constraint("Tangent", 26, 2, 27, 1),
    Sketcher.Constraint("Tangent", 27, 2, 28, 1),
    Sketcher.Constraint("Coincident", 28, 2, 29, 2),
    Sketcher.Constraint("Tangent", 29, 1, 30, 2),
    Sketcher.Constraint("Coincident", 30, 1, 31, 1),
    Sketcher.Constraint("Tangent", 31, 2, 32, 1),
    Sketcher.Constraint("Tangent", 32, 2, 33, 1),
    Sketcher.Constraint("Coincident", 33, 2, 17, 2),
    Sketcher.Constraint("Vertical", 1),
    Sketcher.Constraint("Horizontal", 3),
    Sketcher.Constraint("Horizontal", 5),
    Sketcher.Constraint("Vertical", 7),
    Sketcher.Constraint("Vertical", 9),
    Sketcher.Constraint("Horizontal", 11),
    Sketcher.Constraint("Horizontal", 14),
    Sketcher.Constraint("Vertical", 16),
    Sketcher.Constraint("Vertical", 18),
    Sketcher.Constraint("Horizontal", 20),
    Sketcher.Constraint("Horizontal", 22),
    Sketcher.Constraint("Vertical", 24),
    Sketcher.Constraint("Vertical", 26),
    Sketcher.Constraint("Horizontal", 28),
    Sketcher.Constraint("Horizontal", 31),
    Sketcher.Constraint("Vertical", 33),
    Sketcher.Constraint("Coincident", 4, 3, 0, 3),
    Sketcher.Constraint("Coincident", 8, 3, 0, 3),
    Sketcher.Constraint("Coincident", 12, 3, 0, 3),
    Sketcher.Constraint("Coincident", 21, 3, 17, 3),
    Sketcher.Constraint("Coincident", 25, 3, 17, 3),
    Sketcher.Constraint("Coincident", 29, 3, 17, 3),
    Sketcher.Constraint("Equal", 0, 4),
    Sketcher.Constraint("Equal", 2, 6),
    Sketcher.Constraint("Equal", 4, 8),
    Sketcher.Constraint("Equal", 6, 10),
    Sketcher.Constraint("Equal", 8, 12),
    Sketcher.Constraint("Equal", 12, 13),
    Sketcher.Constraint("Equal", 10, 15),
    Sketcher.Constraint("Equal", 13, 17),
    Sketcher.Constraint("Equal", 15, 19),
    Sketcher.Constraint("Equal", 17, 21),
    Sketcher.Constraint("Equal", 19, 23),
    Sketcher.Constraint("Equal", 21, 25),
    Sketcher.Constraint("Equal", 23, 27),
    Sketcher.Constraint("Equal", 25, 29),
    Sketcher.Constraint("Equal", 29, 30),
    Sketcher.Constraint("Equal", 27, 32),
    Sketcher.Constraint("Symmetric", 0, 3, 17, 3, -1, 1),
    Sketcher.Constraint("Symmetric", 10, 3, 19, 3, -1, 1),
    Sketcher.Constraint("Symmetric", 15, 3, 23, 3, -1, 1),
    Sketcher.Constraint("Symmetric", 2, 3, 27, 3, -1, 1),
    Sketcher.Constraint("Symmetric", 6, 3, 32, 3, -1, 1),
    Sketcher.Constraint("Horizontal", 6, 3, 10, 3),
    Sketcher.Constraint("Horizontal", 2, 3, 15, 3),
    Sketcher.Constraint("Horizontal", 7, 2, 8, 1),
    Sketcher.Constraint("Horizontal", 13, 3, 12, 1),
    Sketcher.Constraint("Horizontal", 0, 1, 16, 2),
    Sketcher.Constraint("Horizontal", 30, 3, 29, 1),
    Sketcher.Constraint("Vertical", 2, 3, 6, 3),
    Sketcher.Constraint("Vertical", 3, 2, 4, 1),
    Sketcher.Constraint("Equal", 31, 1),
    Sketcher.Constraint("Radius", 0, Q("1.5 mm")),
    Sketcher.Constraint("Radius", 2, Q("0.2 mm")),
    Sketcher.Constraint("DistanceX", 0, 3, 2, 3, Q("0.4 mm")),
    Sketcher.Constraint("DistanceX", 6, 3, 17, 3, Q("8.1 mm")),
    Sketcher.Constraint("DistanceY", 17, 3, 6, 3, Q("6.1 mm")),
])
sketch14.setExpression("Constraints[86]", "Params.sketch14_radius")
sketch14.setExpression("Constraints[87]", "Params.sketch14_radius2")
pocket5 = doc.addObject("PartDesign::Pocket", "Pocket004")
body5.addObject(pocket5)
pocket5.Profile = sketch14
pocket5.setExpression("Length", "Params.pocket5_length")
pocket5.Reversed = True

# Sketch on XY plane
sketch15 = doc.addObject("Sketcher::SketchObject", "Sketch014")
body5.addObject(sketch15)
sketch15.AttachmentSupport = (doc.getObject("XY_Plane004"), [""])
sketch15.MapMode = "FlatFace"
sketch15.AttachmentOffset = App.Placement(App.Vector(0, 0, -21.25), App.Rotation())
sketch15.addGeometry([
    Part.Circle(App.Vector(-4.2, 3.2, 0), App.Vector(0, 0, 1), 1.5),
    Part.Circle(App.Vector(4.2, -3.2, 0), App.Vector(0, 0, 1), 1.5),
], False)
sketch15.addConstraint([
    Sketcher.Constraint("Equal", 0, 1),
    Sketcher.Constraint("Symmetric", 0, 3, 1, 3, -1, 1),
    Sketcher.Constraint("Diameter", 0, Q("3 mm")),
    Sketcher.Constraint("DistanceX", 0, 3, 1, 3, Q("8.5 mm")),
    Sketcher.Constraint("DistanceY", 1, 3, 0, 3, Q("6.5 mm")),
])
sketch15.setExpression("Constraints[2]", "Params.sketch15_diameter")
pocket6 = doc.addObject("PartDesign::Pocket", "Pocket005")
body5.addObject(pocket6)
pocket6.Profile = sketch15
pocket6.setExpression("Length", "Params.pocket6_length")
pocket6.Reversed = True

# Sketch on XY plane
sketch16 = doc.addObject("Sketcher::SketchObject", "Sketch015")
body5.addObject(sketch16)
sketch16.AttachmentSupport = (doc.getObject("XY_Plane004"), [""])
sketch16.MapMode = "FlatFace"
sketch16.AttachmentOffset = App.Placement(App.Vector(0, 0, -21.25), App.Rotation())
sketch16.addGeometry([
    Part.Circle(App.Vector(4.5, 0, 0), App.Vector(0, 0, 1), 0.8),
    Part.Circle(App.Vector(-4.5, 0, 0), App.Vector(0, 0, 1), 0.8),
], False)
sketch16.addConstraint([
    Sketcher.Constraint("Equal", 0, 1),
    Sketcher.Constraint("Symmetric", 0, 3, 1, 3, -1, 1),
    Sketcher.Constraint("PointOnObject", 0, 3, -1),
    Sketcher.Constraint("Diameter", 0, Q("1.6 mm")),
    Sketcher.Constraint("DistanceX", 1, 3, 0, 3, Q("9 mm")),
])
sketch16.setExpression("Constraints[3]", "Params.sketch16_diameter")
pocket7 = doc.addObject("PartDesign::Pocket", "Pocket006")
body5.addObject(pocket7)
pocket7.Profile = sketch16
pocket7.setExpression("Length", "Params.pocket7_length")
pocket7.Reversed = True
body6 = doc.addObject("PartDesign::Body", "Body005")

# Sketch on XY plane
sketch17 = doc.addObject("Sketcher::SketchObject", "Sketch016")
body6.addObject(sketch17)
sketch17.AttachmentSupport = (doc.getObject("XY_Plane005"), [""])
sketch17.MapMode = "FlatFace"
sketch17.AttachmentOffset = App.Placement(App.Vector(0, 0, -20.95), App.Rotation())
sketch17.addGeometry(Part.Circle(App.Vector(-4.2, 3.2, 0), App.Vector(0, 0, 1), 1.5), False)
sketch17.addConstraint([
    Sketcher.Constraint("Diameter", 0, Q("3 mm")),
    Sketcher.Constraint("DistanceX", 0, 3, -1, 1, Q("4.25 mm")),
    Sketcher.Constraint("DistanceY", -1, 1, 0, 3, Q("3.25 mm")),
])
sketch17.setExpression("Constraints[0]", "Params.sketch17_diameter")
pad10 = doc.addObject("PartDesign::Pad", "Pad009")
body6.addObject(pad10)
pad10.Profile = sketch17
pad10.setExpression("Length", "Params.pad10_length")
body7 = doc.addObject("PartDesign::Body", "Body006")

# Sketch on XY plane
sketch18 = doc.addObject("Sketcher::SketchObject", "Sketch017")
body7.addObject(sketch18)
sketch18.AttachmentSupport = (doc.getObject("XY_Plane006"), [""])
sketch18.MapMode = "FlatFace"
sketch18.AttachmentOffset = App.Placement(App.Vector(0, 0, -20.95), App.Rotation())
sketch18.addGeometry(Part.Circle(App.Vector(4.2, -3.2, 0), App.Vector(0, 0, 1), 1.5), False)
sketch18.addConstraint([
    Sketcher.Constraint("Diameter", 0, Q("3 mm")),
    Sketcher.Constraint("DistanceX", -1, 1, 0, 3, Q("4.25 mm")),
    Sketcher.Constraint("DistanceY", 0, 3, -1, 1, Q("3.25 mm")),
])
sketch18.setExpression("Constraints[0]", "Params.sketch18_diameter")
pad11 = doc.addObject("PartDesign::Pad", "Pad010")
body7.addObject(pad11)
pad11.Profile = sketch18
pad11.setExpression("Length", "Params.pad11_length")

doc.recompute()
